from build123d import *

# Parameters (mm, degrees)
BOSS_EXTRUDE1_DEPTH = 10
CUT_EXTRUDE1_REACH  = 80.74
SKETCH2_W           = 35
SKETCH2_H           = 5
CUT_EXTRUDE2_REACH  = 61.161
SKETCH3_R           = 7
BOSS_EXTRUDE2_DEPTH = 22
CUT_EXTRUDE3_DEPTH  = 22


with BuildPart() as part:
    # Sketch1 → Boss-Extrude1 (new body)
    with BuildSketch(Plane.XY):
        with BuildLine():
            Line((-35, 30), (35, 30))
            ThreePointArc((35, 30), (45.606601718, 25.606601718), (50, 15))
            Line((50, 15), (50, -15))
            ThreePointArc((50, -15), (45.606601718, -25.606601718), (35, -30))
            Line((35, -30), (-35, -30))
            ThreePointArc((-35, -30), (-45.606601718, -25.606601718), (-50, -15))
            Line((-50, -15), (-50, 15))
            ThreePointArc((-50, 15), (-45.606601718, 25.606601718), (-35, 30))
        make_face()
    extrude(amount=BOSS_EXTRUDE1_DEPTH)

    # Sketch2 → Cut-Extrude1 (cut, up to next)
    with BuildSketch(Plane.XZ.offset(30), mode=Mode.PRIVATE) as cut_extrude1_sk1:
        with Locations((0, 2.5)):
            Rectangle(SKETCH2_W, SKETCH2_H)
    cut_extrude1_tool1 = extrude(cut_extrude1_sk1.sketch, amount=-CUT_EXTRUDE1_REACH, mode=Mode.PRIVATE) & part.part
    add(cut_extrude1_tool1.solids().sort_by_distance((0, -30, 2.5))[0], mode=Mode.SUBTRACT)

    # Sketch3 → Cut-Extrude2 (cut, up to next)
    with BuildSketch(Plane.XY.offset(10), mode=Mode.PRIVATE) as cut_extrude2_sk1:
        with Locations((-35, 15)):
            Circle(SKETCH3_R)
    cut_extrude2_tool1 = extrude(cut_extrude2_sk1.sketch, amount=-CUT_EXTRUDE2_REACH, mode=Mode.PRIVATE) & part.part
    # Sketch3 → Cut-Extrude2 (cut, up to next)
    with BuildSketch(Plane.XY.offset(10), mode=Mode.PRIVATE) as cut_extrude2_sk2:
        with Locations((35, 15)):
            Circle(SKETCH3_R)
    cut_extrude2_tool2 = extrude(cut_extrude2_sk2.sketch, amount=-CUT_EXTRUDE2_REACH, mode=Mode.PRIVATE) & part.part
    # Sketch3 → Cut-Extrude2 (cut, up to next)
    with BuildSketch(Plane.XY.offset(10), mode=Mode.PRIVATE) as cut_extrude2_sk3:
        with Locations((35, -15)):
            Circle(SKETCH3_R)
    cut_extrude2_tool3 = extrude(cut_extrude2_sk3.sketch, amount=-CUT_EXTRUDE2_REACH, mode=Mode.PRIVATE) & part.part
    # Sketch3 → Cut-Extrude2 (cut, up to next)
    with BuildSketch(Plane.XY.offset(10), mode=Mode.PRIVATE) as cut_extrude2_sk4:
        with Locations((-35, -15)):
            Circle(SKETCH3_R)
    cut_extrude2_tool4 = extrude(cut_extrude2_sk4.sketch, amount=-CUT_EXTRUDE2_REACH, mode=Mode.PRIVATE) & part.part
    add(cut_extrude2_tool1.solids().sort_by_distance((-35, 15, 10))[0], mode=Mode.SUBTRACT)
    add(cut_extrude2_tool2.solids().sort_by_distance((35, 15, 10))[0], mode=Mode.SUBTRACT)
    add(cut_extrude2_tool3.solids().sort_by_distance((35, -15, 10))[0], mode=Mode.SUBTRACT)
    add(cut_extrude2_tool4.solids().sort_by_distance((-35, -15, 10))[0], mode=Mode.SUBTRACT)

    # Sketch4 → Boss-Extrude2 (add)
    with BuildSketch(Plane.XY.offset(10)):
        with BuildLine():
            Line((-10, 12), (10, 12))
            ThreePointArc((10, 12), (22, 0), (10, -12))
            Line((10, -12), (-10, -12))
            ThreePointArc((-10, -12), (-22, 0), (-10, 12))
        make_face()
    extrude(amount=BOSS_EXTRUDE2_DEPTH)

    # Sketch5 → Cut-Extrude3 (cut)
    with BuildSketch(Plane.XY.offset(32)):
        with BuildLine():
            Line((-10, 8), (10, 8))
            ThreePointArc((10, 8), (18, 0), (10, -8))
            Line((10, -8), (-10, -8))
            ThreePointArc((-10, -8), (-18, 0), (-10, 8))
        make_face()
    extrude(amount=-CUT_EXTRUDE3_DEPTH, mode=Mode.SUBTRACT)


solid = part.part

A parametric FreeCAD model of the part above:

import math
import FreeCAD as App
import Part
import Sketcher

V = App.Vector

doc = App.newDocument("Part")
body = doc.addObject("PartDesign::Body", "Body")

# Sketch on XY plane
sketch1 = body.newObject("Sketcher::SketchObject", "Sketch")
sketch1.AttachmentSupport = (doc.getObject("XY_Plane"), [""])
sketch1.MapMode = "FlatFace"
sketch1.addGeometry(Part.LineSegment(V(35, 30, 0), V(-35, 30, 0)), False)
sketch1.addGeometry(Part.ArcOfCircle(Part.Circle(V(-35, 15, 0), V(0, 0, 1), 15), math.radians(90), math.radians(180)), False)
sketch1.addGeometry(Part.LineSegment(V(-50, 15, 0), V(-50, -15, 0)), False)
sketch1.addGeometry(Part.ArcOfCircle(Part.Circle(V(-35, -15, 0), V(0, 0, 1), 15), math.radians(180), math.radians(270)), False)
sketch1.addGeometry(Part.LineSegment(V(-35, -30, 0), V(35, -30, 0)), False)
sketch1.addGeometry(Part.ArcOfCircle(Part.Circle(V(35, -15, 0), V(0, 0, 1), 15), math.radians(-90), math.radians(0)), False)
sketch1.addGeometry(Part.LineSegment(V(50, -15, 0), V(50, 15, 0)), False)
sketch1.addGeometry(Part.ArcOfCircle(Part.Circle(V(35, 15, 0), V(0, 0, 1), 15), math.radians(0), math.radians(90)), False)
sketch1.addConstraint(Sketcher.Constraint("Tangent", 0, 2, 1, 1))
sketch1.addConstraint(Sketcher.Constraint("Tangent", 1, 2, 2, 1))
sketch1.addConstraint(Sketcher.Constraint("Tangent", 2, 2, 3, 1))
sketch1.addConstraint(Sketcher.Constraint("Tangent", 3, 2, 4, 1))
sketch1.addConstraint(Sketcher.Constraint("Tangent", 4, 2, 5, 1))
sketch1.addConstraint(Sketcher.Constraint("Tangent", 5, 2, 6, 1))
sketch1.addConstraint(Sketcher.Constraint("Tangent", 6, 2, 7, 1))
sketch1.addConstraint(Sketcher.Constraint("Tangent", 7, 2, 0, 1))
sketch1.addConstraint(Sketcher.Constraint("Horizontal", 0))
sketch1.addConstraint(Sketcher.Constraint("Vertical", 2))
sketch1.addConstraint(Sketcher.Constraint("Horizontal", 4))
sketch1.addConstraint(Sketcher.Constraint("Vertical", 6))
sketch1.addConstraint(Sketcher.Constraint("Equal", 1, 3))
sketch1.addConstraint(Sketcher.Constraint("Equal", 3, 5))
sketch1.addConstraint(Sketcher.Constraint("Equal", 5, 7))
sketch1.addConstraint(Sketcher.Constraint("Symmetric", 1, 3, 5, 3, -1, 1))
sketch1.addConstraint(Sketcher.Constraint("Radius", 1, 15.0))
sketch1.addConstraint(Sketcher.Constraint("DistanceX", 0, 2, 0, 1, 70.0))
sketch1.addConstraint(Sketcher.Constraint("DistanceY", 2, 2, 2, 1, 30.0))
pad1 = body.newObject("PartDesign::Pad", "Pad")
pad1.Profile = sketch1
pad1.Length = 10

# Sketch on XZ plane
sketch2 = body.newObject("Sketcher::SketchObject", "Sketch001")
sketch2.AttachmentSupport = (doc.getObject("XZ_Plane"), [""])
sketch2.MapMode = "FlatFace"
sketch2.AttachmentOffset = App.Placement(V(0, 0, 30), App.Rotation())
sketch2.addGeometry(Part.LineSegment(V(-17.5, 5, 0), V(-17.5, 0, 0)), False)
sketch2.addGeometry(Part.LineSegment(V(-17.5, 0, 0), V(17.5, 0, 0)), False)
sketch2.addGeometry(Part.LineSegment(V(17.5, 0, 0), V(17.5, 5, 0)), False)
sketch2.addGeometry(Part.LineSegment(V(17.5, 5, 0), V(-17.5, 5, 0)), False)
sketch2.addConstraint(Sketcher.Constraint("Coincident", 0, 2, 1, 1))
sketch2.addConstraint(Sketcher.Constraint("Coincident", 1, 2, 2, 1))
sketch2.addConstraint(Sketcher.Constraint("Coincident", 2, 2, 3, 1))
sketch2.addConstraint(Sketcher.Constraint("Coincident", 3, 2, 0, 1))
sketch2.addConstraint(Sketcher.Constraint("Vertical", 0))
sketch2.addConstraint(Sketcher.Constraint("Horizontal", 1))
sketch2.addConstraint(Sketcher.Constraint("Vertical", 2))
sketch2.addConstraint(Sketcher.Constraint("Horizontal", 3))
sketch2.addConstraint(Sketcher.Constraint("Symmetric", 0, 2, 1, 2, -1, 1))
sketch2.addConstraint(Sketcher.Constraint("DistanceX", 1, 1, 1, 2, 35.0))
sketch2.addConstraint(Sketcher.Constraint("DistanceY", 0, 2, 0, 1, 5.0))
pocket1 = body.newObject("PartDesign::Pocket", "Pocket")
pocket1.Profile = sketch2
pocket1.Type = "UpToFirst"

# Sketch on XY plane
sketch3 = body.newObject("Sketcher::SketchObject", "Sketch002")
sketch3.AttachmentSupport = (doc.getObject("XY_Plane"), [""])
sketch3.MapMode = "FlatFace"
sketch3.AttachmentOffset = App.Placement(V(0, 0, 10), App.Rotation())
sketch3.addGeometry(Part.Circle(V(-35, 15, 0), V(0, 0, 1), 7), False)
sketch3.addConstraint(Sketcher.Constraint("Diameter", 0, 14.0))
sketch3.addConstraint(Sketcher.Constraint("DistanceX", 0, 3, -1, 1, 35.0))
sketch3.addConstraint(Sketcher.Constraint("DistanceY", -1, 1, 0, 3, 15.0))
pocket2 = body.newObject("PartDesign::Pocket", "Pocket001")
pocket2.Profile = sketch3
pocket2.Type = "UpToFirst"

# Sketch on XY plane
sketch4 = body.newObject("Sketcher::SketchObject", "Sketch003")
sketch4.AttachmentSupport = (doc.getObject("XY_Plane"), [""])
sketch4.MapMode = "FlatFace"
sketch4.AttachmentOffset = App.Placement(V(0, 0, 10), App.Rotation())
sketch4.addGeometry(Part.Circle(V(35, 15, 0), V(0, 0, 1), 7), False)
sketch4.addConstraint(Sketcher.Constraint("Diameter", 0, 14.0))
sketch4.addConstraint(Sketcher.Constraint("DistanceX", -1, 1, 0, 3, 35.0))
sketch4.addConstraint(Sketcher.Constraint("DistanceY", -1, 1, 0, 3, 15.0))
pocket3 = body.newObject("PartDesign::Pocket", "Pocket002")
pocket3.Profile = sketch4
pocket3.Type = "UpToFirst"

# Sketch on XY plane
sketch5 = body.newObject("Sketcher::SketchObject", "Sketch004")
sketch5.AttachmentSupport = (doc.getObject("XY_Plane"), [""])
sketch5.MapMode = "FlatFace"
sketch5.AttachmentOffset = App.Placement(V(0, 0, 10), App.Rotation())
sketch5.addGeometry(Part.Circle(V(35, -15, 0), V(0, 0, 1), 7), False)
sketch5.addConstraint(Sketcher.Constraint("Diameter", 0, 14.0))
sketch5.addConstraint(Sketcher.Constraint("DistanceX", -1, 1, 0, 3, 35.0))
sketch5.addConstraint(Sketcher.Constraint("DistanceY", 0, 3, -1, 1, 15.0))
pocket4 = body.newObject("PartDesign::Pocket", "Pocket003")
pocket4.Profile = sketch5
pocket4.Type = "UpToFirst"

# Sketch on XY plane
sketch6 = body.newObject("Sketcher::SketchObject", "Sketch005")
sketch6.AttachmentSupport = (doc.getObject("XY_Plane"), [""])
sketch6.MapMode = "FlatFace"
sketch6.AttachmentOffset = App.Placement(V(0, 0, 10), App.Rotation())
sketch6.addGeometry(Part.Circle(V(-35, -15, 0), V(0, 0, 1), 7), False)
sketch6.addConstraint(Sketcher.Constraint("Diameter", 0, 14.0))
sketch6.addConstraint(Sketcher.Constraint("DistanceX", 0, 3, -1, 1, 35.0))
sketch6.addConstraint(Sketcher.Constraint("DistanceY", 0, 3, -1, 1, 15.0))
pocket5 = body.newObject("PartDesign::Pocket", "Pocket004")
pocket5.Profile = sketch6
pocket5.Type = "UpToFirst"

# Sketch on XY plane
sketch7 = body.newObject("Sketcher::SketchObject", "Sketch006")
sketch7.AttachmentSupport = (doc.getObject("XY_Plane"), [""])
sketch7.MapMode = "FlatFace"
sketch7.AttachmentOffset = App.Placement(V(0, 0, 10), App.Rotation())
sketch7.addGeometry(Part.LineSegment(V(10, 12, 0), V(-10, 12, 0)), False)
sketch7.addGeometry(Part.ArcOfCircle(Part.Circle(V(-10, 0, 0), V(0, 0, 1), 12), math.radians(90), math.radians(270)), False)
sketch7.addGeometry(Part.LineSegment(V(-10, -12, 0), V(10, -12, 0)), False)
sketch7.addGeometry(Part.ArcOfCircle(Part.Circle(V(10, 0, 0), V(0, 0, 1), 12), math.radians(-90), math.radians(90)), False)
sketch7.addConstraint(Sketcher.Constraint("Tangent", 0, 2, 1, 1))
sketch7.addConstraint(Sketcher.Constraint("Tangent", 1, 2, 2, 1))
sketch7.addConstraint(Sketcher.Constraint("Tangent", 2, 2, 3, 1))
sketch7.addConstraint(Sketcher.Constraint("Tangent", 3, 2, 0, 1))
sketch7.addConstraint(Sketcher.Constraint("Horizontal", 0))
sketch7.addConstraint(Sketcher.Constraint("Horizontal", 2))
sketch7.addConstraint(Sketcher.Constraint("Symmetric", 1, 3, 3, 3, -1, 1))
sketch7.addConstraint(Sketcher.Constraint("Radius", 1, 12.0))
sketch7.addConstraint(Sketcher.Constraint("DistanceX", 0, 2, 0, 1, 20.0))
pad2 = body.newObject("PartDesign::Pad", "Pad001")
pad2.Profile = sketch7
pad2.Length = 22

# Sketch on XY plane
sketch8 = body.newObject("Sketcher::SketchObject", "Sketch007")
sketch8.AttachmentSupport = (doc.getObject("XY_Plane"), [""])
sketch8.MapMode = "FlatFace"
sketch8.AttachmentOffset = App.Placement(V(0, 0, 32), App.Rotation())
sketch8.addGeometry(Part.LineSegment(V(10, 8, 0), V(-10, 8, 0)), False)
sketch8.addGeometry(Part.ArcOfCircle(Part.Circle(V(-10, 0, 0), V(0, 0, 1), 8), math.radians(90), math.radians(270)), False)
sketch8.addGeometry(Part.LineSegment(V(-10, -8, 0), V(10, -8, 0)), False)
sketch8.addGeometry(Part.ArcOfCircle(Part.Circle(V(10, 0, 0), V(0, 0, 1), 8), math.radians(-90), math.radians(90)), False)
sketch8.addConstraint(Sketcher.Constraint("Tangent", 0, 2, 1, 1))
sketch8.addConstraint(Sketcher.Constraint("Tangent", 1, 2, 2, 1))
sketch8.addConstraint(Sketcher.Constraint("Tangent", 2, 2, 3, 1))
sketch8.addConstraint(Sketcher.Constraint("Tangent", 3, 2, 0, 1))
sketch8.addConstraint(Sketcher.Constraint("Horizontal", 0))
sketch8.addConstraint(Sketcher.Constraint("Horizontal", 2))
sketch8.addConstraint(Sketcher.Constraint("Symmetric", 1, 3, 3, 3, -1, 1))
sketch8.addConstraint(Sketcher.Constraint("Radius", 1, 8.0))
sketch8.addConstraint(Sketcher.Constraint("DistanceX", 0, 2, 0, 1, 20.0))
pocket6 = body.newObject("PartDesign::Pocket", "Pocket005")
pocket6.Profile = sketch8
pocket6.Length = 22

doc.recompute()
